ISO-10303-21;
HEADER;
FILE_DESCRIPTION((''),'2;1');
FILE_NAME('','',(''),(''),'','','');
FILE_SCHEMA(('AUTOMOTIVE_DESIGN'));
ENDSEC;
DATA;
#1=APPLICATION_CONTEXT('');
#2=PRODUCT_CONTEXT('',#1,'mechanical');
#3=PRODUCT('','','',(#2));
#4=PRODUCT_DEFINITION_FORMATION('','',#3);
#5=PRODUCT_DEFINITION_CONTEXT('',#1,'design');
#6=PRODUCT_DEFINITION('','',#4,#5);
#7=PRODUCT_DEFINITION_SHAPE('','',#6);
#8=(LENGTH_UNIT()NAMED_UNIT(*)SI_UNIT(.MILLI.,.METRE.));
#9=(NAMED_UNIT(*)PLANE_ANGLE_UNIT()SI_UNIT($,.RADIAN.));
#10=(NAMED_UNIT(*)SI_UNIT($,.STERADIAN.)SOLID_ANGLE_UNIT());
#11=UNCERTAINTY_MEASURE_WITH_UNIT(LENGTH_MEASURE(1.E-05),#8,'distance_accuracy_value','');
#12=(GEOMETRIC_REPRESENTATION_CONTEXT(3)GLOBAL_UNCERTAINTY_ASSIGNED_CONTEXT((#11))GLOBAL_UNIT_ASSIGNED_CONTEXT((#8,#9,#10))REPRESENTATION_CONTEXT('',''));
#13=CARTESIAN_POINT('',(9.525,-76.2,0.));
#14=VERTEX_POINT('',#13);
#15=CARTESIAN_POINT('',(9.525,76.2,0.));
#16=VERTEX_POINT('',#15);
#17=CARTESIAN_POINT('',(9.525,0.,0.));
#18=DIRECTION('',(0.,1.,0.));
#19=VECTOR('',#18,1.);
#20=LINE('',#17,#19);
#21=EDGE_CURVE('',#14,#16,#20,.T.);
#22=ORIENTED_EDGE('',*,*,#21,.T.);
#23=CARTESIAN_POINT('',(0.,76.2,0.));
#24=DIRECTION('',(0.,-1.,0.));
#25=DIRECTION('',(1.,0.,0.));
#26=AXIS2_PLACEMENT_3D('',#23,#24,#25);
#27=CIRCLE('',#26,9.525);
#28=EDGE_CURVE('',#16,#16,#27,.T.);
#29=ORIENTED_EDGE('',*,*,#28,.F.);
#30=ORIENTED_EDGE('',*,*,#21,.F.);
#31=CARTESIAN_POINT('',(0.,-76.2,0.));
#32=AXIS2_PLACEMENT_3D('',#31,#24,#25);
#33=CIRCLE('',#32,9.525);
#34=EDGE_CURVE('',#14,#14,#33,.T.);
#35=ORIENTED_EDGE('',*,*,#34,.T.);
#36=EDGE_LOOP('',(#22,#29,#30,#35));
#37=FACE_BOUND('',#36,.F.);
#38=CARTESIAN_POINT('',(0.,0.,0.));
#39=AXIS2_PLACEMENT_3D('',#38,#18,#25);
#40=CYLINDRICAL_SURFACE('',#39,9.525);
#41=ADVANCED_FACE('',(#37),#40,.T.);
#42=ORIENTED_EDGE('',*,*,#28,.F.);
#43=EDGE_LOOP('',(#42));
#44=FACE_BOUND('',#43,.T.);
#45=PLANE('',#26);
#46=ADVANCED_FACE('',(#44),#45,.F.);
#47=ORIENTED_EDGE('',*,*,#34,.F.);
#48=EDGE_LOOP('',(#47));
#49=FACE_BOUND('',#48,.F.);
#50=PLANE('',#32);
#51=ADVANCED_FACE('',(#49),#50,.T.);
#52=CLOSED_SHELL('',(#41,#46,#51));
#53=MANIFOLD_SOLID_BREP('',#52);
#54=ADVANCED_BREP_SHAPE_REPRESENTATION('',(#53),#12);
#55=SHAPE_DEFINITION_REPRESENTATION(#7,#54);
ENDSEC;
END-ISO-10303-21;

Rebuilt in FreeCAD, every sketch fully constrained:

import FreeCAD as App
import Part
import Sketcher

V = App.Vector
Q = App.Units.Quantity


def add_polygon(sketch, points):
    """Adds a closed chain of lines whose ends are joined by coincident constraints."""
    first, n = sketch.GeometryCount, len(points)
    for a, b in zip(points, points[1:] + points[:1]):
        sketch.addGeometry(Part.LineSegment(App.Vector(*a, 0), App.Vector(*b, 0)), False)
    for i in range(n):
        sketch.addConstraint(Sketcher.Constraint("Coincident", first + i, 2, first + (i + 1) % n, 1))

doc = App.newDocument("Part")
body = doc.addObject("PartDesign::Body", "Body")

sketch1 = body.newObject("Sketcher::SketchObject", "Sketch")
sketch1.AttachmentSupport = (doc.getObject("XY_Plane"), [""])
sketch1.MapMode = "FlatFace"
add_polygon(sketch1, [(0, 76), (0, -76), (10, -76), (10, 76)])
sketch1.addConstraint(Sketcher.Constraint("Vertical", 0))
sketch1.addConstraint(Sketcher.Constraint("Horizontal", 1))
sketch1.addConstraint(Sketcher.Constraint("Vertical", 2))
sketch1.addConstraint(Sketcher.Constraint("Horizontal", 3))
sketch1.addConstraint(Sketcher.Constraint("Symmetric", 0, 2, 3, 2, -1, 1))
sketch1.addConstraint(Sketcher.Constraint("DistanceY", 0, 2, 0, 1, Q("6 in")))
sketch1.addConstraint(Sketcher.Constraint("DistanceX", 1, 1, 1, 2, Q("0.375 in")))
revolution = body.newObject("PartDesign::Revolution", "Revolution")
revolution.Profile = sketch1
revolution.ReferenceAxis = (sketch1, ["V_Axis"])
revolution.Angle = 360

doc.recompute()
